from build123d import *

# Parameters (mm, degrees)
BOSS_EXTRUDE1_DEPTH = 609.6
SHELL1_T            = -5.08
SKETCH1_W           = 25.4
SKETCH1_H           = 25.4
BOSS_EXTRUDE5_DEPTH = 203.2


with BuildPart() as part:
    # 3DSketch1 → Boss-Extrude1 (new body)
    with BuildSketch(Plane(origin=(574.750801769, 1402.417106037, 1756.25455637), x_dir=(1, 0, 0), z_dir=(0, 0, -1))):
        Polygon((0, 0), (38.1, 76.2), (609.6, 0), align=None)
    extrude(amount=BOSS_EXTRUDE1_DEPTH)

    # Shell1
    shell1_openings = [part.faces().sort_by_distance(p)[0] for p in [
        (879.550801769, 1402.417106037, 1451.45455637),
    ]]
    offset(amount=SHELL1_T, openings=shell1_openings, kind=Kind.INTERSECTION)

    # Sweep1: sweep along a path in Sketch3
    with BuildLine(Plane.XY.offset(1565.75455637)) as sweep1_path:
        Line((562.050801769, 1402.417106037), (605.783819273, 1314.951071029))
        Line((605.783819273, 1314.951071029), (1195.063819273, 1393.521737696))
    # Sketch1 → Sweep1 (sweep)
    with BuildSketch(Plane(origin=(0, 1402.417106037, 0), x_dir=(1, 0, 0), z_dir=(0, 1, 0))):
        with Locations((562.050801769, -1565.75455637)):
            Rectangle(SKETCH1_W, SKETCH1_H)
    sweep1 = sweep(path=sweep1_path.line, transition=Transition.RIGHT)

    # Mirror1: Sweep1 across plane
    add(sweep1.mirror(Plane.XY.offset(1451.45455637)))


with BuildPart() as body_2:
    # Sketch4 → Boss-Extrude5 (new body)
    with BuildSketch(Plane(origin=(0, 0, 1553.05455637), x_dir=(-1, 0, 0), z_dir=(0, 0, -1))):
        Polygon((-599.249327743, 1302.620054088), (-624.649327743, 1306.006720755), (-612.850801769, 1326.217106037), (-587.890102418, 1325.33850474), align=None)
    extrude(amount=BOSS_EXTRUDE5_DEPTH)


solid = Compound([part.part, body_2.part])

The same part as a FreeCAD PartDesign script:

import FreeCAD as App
import Part
import Sketcher
Q = App.Units.Quantity


def faces_at(feature, points):
    """Names of the faces that lie closest to the given points."""
    faces = feature.Shape.Faces
    near = lambda p: min(range(len(faces)), key=lambda i: faces[i].distToShape(Part.Vertex(*p))[0])
    return sorted({f"Face{near(p) + 1}" for p in points})


def add_polygon(sketch, points):
    """Adds a closed chain of lines whose ends are joined by coincident constraints."""
    first, n = sketch.GeometryCount, len(points)
    for a, b in zip(points, points[1:] + points[:1]):
        sketch.addGeometry(Part.LineSegment(App.Vector(*a, 0), App.Vector(*b, 0)), False)
    for i in range(n):
        sketch.addConstraint(Sketcher.Constraint("Coincident", first + i, 2, first + (i + 1) % n, 1))

doc = App.newDocument("Part")
body = doc.addObject("PartDesign::Body", "Body")

# Sketch on XY plane
sketch1 = body.newObject("Sketcher::SketchObject", "Sketch")
sketch1.AttachmentSupport = (doc.getObject("XY_Plane"), [""])
sketch1.MapMode = "FlatFace"
sketch1.AttachmentOffset = App.Placement(App.Vector(0, 0, 1756.254556), App.Rotation())
add_polygon(sketch1, [(613, 1326), (575, 1402), (1184, 1402)])  # lines 0-2
sketch1.addConstraint([
    Sketcher.Constraint("Horizontal", 1),
    Sketcher.Constraint("DistanceX", 1, 1, 1, 2, Q("24 in")),
    Sketcher.Constraint("DistanceY", 2, 2, 0, 2, Q("3 in")),
    Sketcher.Constraint("DistanceX", 0, 2, 2, 2, Q("1.5 in")),
    Sketcher.Constraint("DistanceX", -1, 1, 0, 2, Q("574.750802 mm")),
    Sketcher.Constraint("DistanceY", -1, 1, 0, 2, Q("1402.417106 mm")),
])
pad1 = body.newObject("PartDesign::Pad", "Pad")
pad1.Profile = sketch1
pad1.Length = Q("24 in")
pad1.Reversed = True
doc.recompute()

thickness = body.newObject("PartDesign::Thickness", "Thickness")
thickness.Base = (pad1, faces_at(pad1, [(879.551, 1402.417, 1451.455)]))
thickness.Value = Q("0.2 in")
thickness.Reversed = True
thickness.Join = "Intersection"

# Sketch on XZ plane
sketch2 = body.newObject("Sketcher::SketchObject", "Sketch001")
sketch2.AttachmentSupport = (doc.getObject("XZ_Plane"), [""])
sketch2.MapMode = "FlatFace"
sketch2.AttachmentOffset = App.Placement(App.Vector(0, 0, -1402.417106), App.Rotation())
add_polygon(sketch2, [(549, 1553), (549, 1578), (575, 1578), (575, 1553)])  # lines 0-3
sketch2.addConstraint([
    Sketcher.Constraint("Vertical", 0),
    Sketcher.Constraint("Horizontal", 1),
    Sketcher.Constraint("Vertical", 2),
    Sketcher.Constraint("Horizontal", 3),
    Sketcher.Constraint("Equal", 3, 0),
    Sketcher.Constraint("DistanceX", 1, 1, 1, 2, Q("1 in")),
    Sketcher.Constraint("DistanceX", -1, 1, 0, 2, Q("549.350802 mm")),
    Sketcher.Constraint("DistanceY", -1, 1, 0, 2, Q("1578.454556 mm")),
])

# Sketch on XY plane
sketch3 = body.newObject("Sketcher::SketchObject", "Sketch002")
sketch3.AttachmentSupport = (doc.getObject("XY_Plane"), [""])
sketch3.MapMode = "FlatFace"
sketch3.AttachmentOffset = App.Placement(App.Vector(0, 0, 1565.754556), App.Rotation())
sketch3.addGeometry([
    Part.LineSegment(App.Vector(562, 1402, 0), App.Vector(606, 1315, 0)),
    Part.LineSegment(App.Vector(606, 1315, 0), App.Vector(1195, 1394, 0)),
], False)
sketch3.addConstraint([
    Sketcher.Constraint("Coincident", 0, 2, 1, 1),
    Sketcher.Constraint("DistanceX", 0, 2, 1, 2, Q("23.2 in")),
    Sketcher.Constraint("Distance", 0, Q("3.85 in")),
    Sketcher.Constraint("DistanceX", -1, 1, 0, 1, Q("562.050802 mm")),
    Sketcher.Constraint("Distance", 1, Q("594.494969 mm")),
    Sketcher.Constraint("DistanceX", -1, 1, 0, 2, Q("605.783819 mm")),
    Sketcher.Constraint("DistanceY", -1, 1, 0, 2, Q("1314.951071 mm")),
])
doc.recompute()

additivepipe = body.newObject("PartDesign::AdditivePipe", "AdditivePipe")
additivepipe.Profile = sketch2
additivepipe.Spine = (sketch3, ["Edge1", "Edge2"])
additivepipe.Transition = "Right corner"
doc.recompute()

datumplane = body.newObject("PartDesign::Plane", "DatumPlane")
datumplane.AttachmentSupport = (doc.getObject("XY_Plane"), [""])
datumplane.MapMode = "FlatFace"
datumplane.AttachmentOffset = App.Placement(App.Vector(0, 0, 1451.454556), App.Rotation())
mirrored = body.newObject("PartDesign::Mirrored", "Mirrored")
mirrored.Originals = [additivepipe]
mirrored.MirrorPlane = (datumplane, [""])
body.Tip = mirrored
body2 = doc.addObject("PartDesign::Body", "Body001")

# Sketch on XY plane
sketch4 = body2.newObject("Sketcher::SketchObject", "Sketch003")
sketch4.AttachmentSupport = (doc.getObject("XY_Plane001"), [""])
sketch4.MapMode = "FlatFace"
sketch4.AttachmentOffset = App.Placement(App.Vector(0, 0, 1553.054556), App.Rotation())
add_polygon(sketch4, [(625, 1306), (599, 1303), (588, 1325), (613, 1326)])  # lines 0-3
sketch4.addConstraint([
    Sketcher.Constraint("Distance", 1, Q("1 in")),
    Sketcher.Constraint("DistanceX", 0, 2, 3, 2, Q("1 in")),
    Sketcher.Constraint("DistanceX", -1, 1, 2, 2, Q("612.850802 mm")),
    Sketcher.Constraint("DistanceX", 1, 2, 2, 2, Q("24.960699 mm")),
    Sketcher.Constraint("DistanceY", 1, 2, 2, 2, Q("0.878601 mm")),
    Sketcher.Constraint("Distance", 3, Q("23.402241 mm")),
    Sketcher.Constraint("DistanceY", -1, 1, 3, 2, Q("1306.006721 mm")),
    Sketcher.Constraint("DistanceY", 0, 2, 1, 2, Q("22.718451 mm")),
])
pad2 = body2.newObject("PartDesign::Pad", "Pad001")
pad2.Profile = sketch4
pad2.Length = Q("8 in")
pad2.Reversed = True

doc.recompute()
